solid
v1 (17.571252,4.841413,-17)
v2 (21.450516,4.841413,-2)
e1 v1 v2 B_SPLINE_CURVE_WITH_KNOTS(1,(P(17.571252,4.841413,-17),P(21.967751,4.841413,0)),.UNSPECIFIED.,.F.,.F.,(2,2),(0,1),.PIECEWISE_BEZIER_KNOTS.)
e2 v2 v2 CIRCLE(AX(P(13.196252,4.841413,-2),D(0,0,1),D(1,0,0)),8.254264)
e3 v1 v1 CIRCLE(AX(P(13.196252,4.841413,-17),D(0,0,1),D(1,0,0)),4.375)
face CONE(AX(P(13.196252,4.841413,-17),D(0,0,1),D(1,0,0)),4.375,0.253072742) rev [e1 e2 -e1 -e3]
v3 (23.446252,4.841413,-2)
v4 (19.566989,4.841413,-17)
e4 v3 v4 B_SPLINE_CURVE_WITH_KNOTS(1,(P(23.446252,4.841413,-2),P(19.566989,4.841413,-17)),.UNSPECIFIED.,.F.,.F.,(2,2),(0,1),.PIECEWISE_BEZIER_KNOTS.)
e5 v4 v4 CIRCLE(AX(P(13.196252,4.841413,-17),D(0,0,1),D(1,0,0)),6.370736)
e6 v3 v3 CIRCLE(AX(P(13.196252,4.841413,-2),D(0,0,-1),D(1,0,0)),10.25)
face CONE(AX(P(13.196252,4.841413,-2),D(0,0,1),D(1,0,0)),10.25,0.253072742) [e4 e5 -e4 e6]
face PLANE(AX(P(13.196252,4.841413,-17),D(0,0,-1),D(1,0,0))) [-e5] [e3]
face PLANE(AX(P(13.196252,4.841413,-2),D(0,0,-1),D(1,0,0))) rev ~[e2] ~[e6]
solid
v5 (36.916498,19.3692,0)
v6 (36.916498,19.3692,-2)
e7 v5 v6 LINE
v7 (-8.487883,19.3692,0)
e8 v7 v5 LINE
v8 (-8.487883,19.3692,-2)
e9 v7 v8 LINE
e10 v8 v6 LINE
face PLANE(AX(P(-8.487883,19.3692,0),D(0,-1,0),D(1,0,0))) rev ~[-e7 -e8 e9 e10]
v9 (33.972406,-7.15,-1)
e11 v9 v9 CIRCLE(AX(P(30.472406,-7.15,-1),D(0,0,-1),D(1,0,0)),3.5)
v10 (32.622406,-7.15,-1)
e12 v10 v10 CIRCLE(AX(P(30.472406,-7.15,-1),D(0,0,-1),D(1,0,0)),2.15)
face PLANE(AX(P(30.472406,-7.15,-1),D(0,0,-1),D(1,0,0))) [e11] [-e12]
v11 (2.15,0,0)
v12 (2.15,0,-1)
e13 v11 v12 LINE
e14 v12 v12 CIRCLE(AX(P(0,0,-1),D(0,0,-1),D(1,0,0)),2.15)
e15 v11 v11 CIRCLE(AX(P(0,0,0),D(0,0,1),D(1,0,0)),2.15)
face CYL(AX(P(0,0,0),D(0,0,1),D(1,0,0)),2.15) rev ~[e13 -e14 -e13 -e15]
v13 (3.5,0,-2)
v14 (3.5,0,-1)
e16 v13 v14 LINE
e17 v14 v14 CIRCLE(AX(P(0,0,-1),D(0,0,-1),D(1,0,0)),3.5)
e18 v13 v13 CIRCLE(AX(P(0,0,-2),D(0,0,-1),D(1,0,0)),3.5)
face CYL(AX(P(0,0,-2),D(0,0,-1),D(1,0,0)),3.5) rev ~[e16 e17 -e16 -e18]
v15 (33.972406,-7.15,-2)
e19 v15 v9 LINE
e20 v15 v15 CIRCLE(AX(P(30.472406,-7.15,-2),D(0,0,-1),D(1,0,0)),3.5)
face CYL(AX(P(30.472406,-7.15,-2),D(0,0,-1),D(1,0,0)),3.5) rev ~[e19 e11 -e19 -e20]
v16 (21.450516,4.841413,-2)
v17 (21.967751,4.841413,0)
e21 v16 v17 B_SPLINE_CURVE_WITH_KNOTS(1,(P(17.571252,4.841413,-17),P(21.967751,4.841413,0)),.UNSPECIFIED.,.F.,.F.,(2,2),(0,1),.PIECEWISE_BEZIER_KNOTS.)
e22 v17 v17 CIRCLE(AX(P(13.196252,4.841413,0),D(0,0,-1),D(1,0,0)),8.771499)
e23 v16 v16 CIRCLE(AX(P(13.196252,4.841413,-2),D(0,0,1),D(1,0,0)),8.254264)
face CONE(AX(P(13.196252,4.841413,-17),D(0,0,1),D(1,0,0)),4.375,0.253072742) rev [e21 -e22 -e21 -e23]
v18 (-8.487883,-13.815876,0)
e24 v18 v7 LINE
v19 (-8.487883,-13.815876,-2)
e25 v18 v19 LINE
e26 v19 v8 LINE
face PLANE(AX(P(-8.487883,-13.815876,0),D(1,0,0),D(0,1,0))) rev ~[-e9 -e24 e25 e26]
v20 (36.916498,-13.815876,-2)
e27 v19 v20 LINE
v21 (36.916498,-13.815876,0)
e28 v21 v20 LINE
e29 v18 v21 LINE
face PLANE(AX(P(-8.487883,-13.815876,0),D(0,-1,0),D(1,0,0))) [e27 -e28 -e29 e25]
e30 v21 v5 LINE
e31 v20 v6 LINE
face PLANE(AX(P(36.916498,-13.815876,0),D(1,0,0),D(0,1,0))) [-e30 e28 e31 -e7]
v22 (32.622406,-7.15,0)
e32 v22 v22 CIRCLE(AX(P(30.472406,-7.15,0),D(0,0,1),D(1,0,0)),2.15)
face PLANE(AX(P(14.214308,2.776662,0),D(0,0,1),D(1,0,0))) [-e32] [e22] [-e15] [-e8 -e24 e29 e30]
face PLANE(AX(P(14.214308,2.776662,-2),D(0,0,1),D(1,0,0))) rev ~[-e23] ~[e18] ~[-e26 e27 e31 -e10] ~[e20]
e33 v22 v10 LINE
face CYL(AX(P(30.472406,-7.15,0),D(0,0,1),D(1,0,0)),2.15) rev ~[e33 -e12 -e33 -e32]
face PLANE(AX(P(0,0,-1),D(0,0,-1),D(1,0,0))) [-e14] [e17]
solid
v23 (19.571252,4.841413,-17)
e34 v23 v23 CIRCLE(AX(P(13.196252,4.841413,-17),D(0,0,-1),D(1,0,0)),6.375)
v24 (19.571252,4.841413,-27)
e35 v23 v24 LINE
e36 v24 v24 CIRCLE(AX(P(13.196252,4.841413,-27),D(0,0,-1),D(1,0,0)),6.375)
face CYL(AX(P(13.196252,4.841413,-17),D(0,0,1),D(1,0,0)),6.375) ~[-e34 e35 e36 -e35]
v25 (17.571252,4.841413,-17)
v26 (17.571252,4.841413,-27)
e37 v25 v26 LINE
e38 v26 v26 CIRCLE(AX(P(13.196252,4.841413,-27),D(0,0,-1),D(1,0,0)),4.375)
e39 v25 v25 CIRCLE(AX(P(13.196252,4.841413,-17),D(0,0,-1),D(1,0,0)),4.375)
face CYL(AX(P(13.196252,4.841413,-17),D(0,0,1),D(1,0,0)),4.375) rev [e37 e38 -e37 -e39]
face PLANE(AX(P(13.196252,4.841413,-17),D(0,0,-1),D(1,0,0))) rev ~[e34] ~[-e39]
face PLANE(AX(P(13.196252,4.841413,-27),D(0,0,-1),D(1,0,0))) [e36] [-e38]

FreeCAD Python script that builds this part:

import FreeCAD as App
import Part
import Sketcher


def add_polygon(sketch, points):
    """Adds a closed chain of lines whose ends are joined by coincident constraints."""
    first, n = sketch.GeometryCount, len(points)
    for a, b in zip(points, points[1:] + points[:1]):
        sketch.addGeometry(Part.LineSegment(App.Vector(*a, 0), App.Vector(*b, 0)), False)
    for i in range(n):
        sketch.addConstraint(Sketcher.Constraint("Coincident", first + i, 2, first + (i + 1) % n, 1))

doc = App.newDocument("Part")
body = doc.addObject("PartDesign::Body", "Body")

sketch1 = body.newObject("Sketcher::SketchObject", "Sketch")
sketch1.AttachmentSupport = (doc.getObject("XY_Plane"), [""])
sketch1.MapMode = "FlatFace"
add_polygon(sketch1, [(-8.487883, 19.3692), (-8.487883, -13.815876), (36.916498, -13.815876), (36.916498, 19.3692)])
sketch1.addGeometry(Part.Circle(App.Vector(0, 0, 0), App.Vector(0, 0, 1), 2.15), False)
sketch1.addGeometry(Part.Circle(App.Vector(30.472406, -7.15, 0), App.Vector(0, 0, 1), 2.15), False)
add_polygon(sketch1, [(18.89, -0.85), (7.39, -0.85), (7.39, 10.65), (18.89, 10.65)])
sketch1.addConstraint(Sketcher.Constraint("Vertical", 0))
sketch1.addConstraint(Sketcher.Constraint("Horizontal", 1))
sketch1.addConstraint(Sketcher.Constraint("Vertical", 2))
sketch1.addConstraint(Sketcher.Constraint("Horizontal", 3))
sketch1.addConstraint(Sketcher.Constraint("Horizontal", 6))
sketch1.addConstraint(Sketcher.Constraint("Vertical", 7))
sketch1.addConstraint(Sketcher.Constraint("Horizontal", 8))
sketch1.addConstraint(Sketcher.Constraint("Vertical", 9))
sketch1.addConstraint(Sketcher.Constraint("Coincident", 4, 3, -1, 1))
sketch1.addConstraint(Sketcher.Constraint("Equal", 4, 5))
sketch1.addConstraint(Sketcher.Constraint("Equal", 8, 7))
sketch1.addConstraint(Sketcher.Constraint("Diameter", 4, 4.3))
sketch1.addConstraint(Sketcher.Constraint("DistanceX", 6, 2, 6, 1, 11.5))
sketch1.addConstraint(Sketcher.Constraint("DistanceY", 5, 3, 6, 2, 6.3))
sketch1.addConstraint(Sketcher.Constraint("DistanceY", 5, 3, -1, 1, 7.15))
sketch1.addConstraint(Sketcher.Constraint("DistanceX", -1, 1, 6, 2, 7.39))
sketch1.addConstraint(Sketcher.Constraint("DistanceX", 1, 1, 1, 2, 45.404381))
sketch1.addConstraint(Sketcher.Constraint("DistanceX", -1, 1, 1, 2, 36.916498))
sketch1.addConstraint(Sketcher.Constraint("DistanceY", -1, 1, 2, 2, 19.3692))
sketch1.addConstraint(Sketcher.Constraint("DistanceY", 0, 2, 0, 1, 33.185076))
sketch1.addConstraint(Sketcher.Constraint("DistanceX", 0, 2, 5, 3, 38.960289))
pad1 = body.newObject("PartDesign::Pad", "Pad")
pad1.Profile = sketch1
pad1.Length = 2
pad1.Reversed = True

sketch2 = body.newObject("Sketcher::SketchObject", "Sketch001")
sketch2.AttachmentSupport = (doc.getObject("XY_Plane"), [""])
sketch2.MapMode = "FlatFace"
sketch2.AttachmentOffset = App.Placement(App.Vector(0, 0, -2), App.Rotation())
sketch2.addGeometry(Part.Circle(App.Vector(30.472406, -7.15, 0), App.Vector(0, 0, 1), 3.5), False)
sketch2.addGeometry(Part.Circle(App.Vector(30.472406, -7.15, 0), App.Vector(0, 0, 1), 2.15), False)
sketch2.addGeometry(Part.Circle(App.Vector(0, 0, 0), App.Vector(0, 0, 1), 3.5), False)
sketch2.addGeometry(Part.Circle(App.Vector(0, 0, 0), App.Vector(0, 0, 1), 2.15), False)
sketch2.addConstraint(Sketcher.Constraint("Coincident", 2, 3, -1, 1))
sketch2.addConstraint(Sketcher.Constraint("Coincident", 3, 3, -1, 1))
sketch2.addConstraint(Sketcher.Constraint("Coincident", 1, 3, 0, 3))
sketch2.addConstraint(Sketcher.Constraint("Equal", 0, 2))
sketch2.addConstraint(Sketcher.Constraint("Equal", 1, 3))
sketch2.addConstraint(Sketcher.Constraint("Diameter", 0, 7.0))
sketch2.addConstraint(Sketcher.Constraint("Diameter", 1, 4.3))
sketch2.addConstraint(Sketcher.Constraint("DistanceY", 0, 3, -1, 1, 7.15))
sketch2.addConstraint(Sketcher.Constraint("DistanceX", -1, 1, 0, 3, 30.472406))
pocket1 = body.newObject("PartDesign::Pocket", "Pocket")
pocket1.Profile = sketch2
pocket1.Length = 1
pocket1.Reversed = True
body2 = doc.addObject("PartDesign::Body", "Body001")

sketch3 = body2.newObject("Sketcher::SketchObject", "Sketch002")
sketch3.AttachmentSupport = (doc.getObject("XY_Plane001"), [""])
sketch3.MapMode = "FlatFace"
sketch3.AttachmentOffset = App.Placement(App.Vector(0, 0, -17), App.Rotation())
sketch3.addGeometry(Part.Circle(App.Vector(13.196252, 4.841413, 0), App.Vector(0, 0, 1), 6.375), False)
sketch3.addGeometry(Part.Circle(App.Vector(13.196252, 4.841413, 0), App.Vector(0, 0, 1), 4.375), False)
sketch3.addConstraint(Sketcher.Constraint("Coincident", 1, 3, 0, 3))
sketch3.addConstraint(Sketcher.Constraint("Diameter", 0, 12.75))
sketch3.addConstraint(Sketcher.Constraint("Diameter", 1, 8.75))
sketch3.addConstraint(Sketcher.Constraint("DistanceX", -1, 1, 0, 3, 13.196252))
sketch3.addConstraint(Sketcher.Constraint("DistanceY", -1, 1, 0, 3, 4.841413))
pad2 = body2.newObject("PartDesign::Pad", "Pad001")
pad2.Profile = sketch3
pad2.Length = 10
pad2.Reversed = True
body3 = doc.addObject("PartDesign::Body", "Body002")

sketch4 = body3.newObject("Sketcher::SketchObject", "Sketch003")
sketch4.AttachmentSupport = (doc.getObject("XY_Plane002"), [""])
sketch4.MapMode = "FlatFace"
sketch4.AttachmentOffset = App.Placement(App.Vector(0, 0, -2), App.Rotation())
sketch4.addGeometry(Part.Circle(App.Vector(13.196252, 4.841413, 0), App.Vector(0, 0, 1), 10.25), False)
sketch4.addConstraint(Sketcher.Constraint("Diameter", 0, 20.5))
sketch4.addConstraint(Sketcher.Constraint("DistanceX", -1, 1, 0, 3, 13.196252))
sketch4.addConstraint(Sketcher.Constraint("DistanceY", -1, 1, 0, 3, 4.841413))
pad3 = body3.newObject("PartDesign::Pad", "Pad002")
pad3.Profile = sketch4
pad3.Length = 15
pad3.Reversed = True
pad3.TaperAngle = -14.5
body4 = doc.addObject("PartDesign::Body", "Body003")

sketch5 = body4.newObject("Sketcher::SketchObject", "Sketch004")
sketch5.AttachmentSupport = (doc.getObject("XY_Plane003"), [""])
sketch5.MapMode = "FlatFace"
sketch5.AttachmentOffset = App.Placement(App.Vector(0, 0, -17), App.Rotation())
sketch5.addGeometry(Part.Circle(App.Vector(13.196252, 4.841413, 0), App.Vector(0, 0, 1), 4.375), False)
sketch5.addConstraint(Sketcher.Constraint("Diameter", 0, 8.75))
sketch5.addConstraint(Sketcher.Constraint("DistanceX", -1, 1, 0, 3, 13.196252))
sketch5.addConstraint(Sketcher.Constraint("DistanceY", -1, 1, 0, 3, 4.841413))
pad4 = body4.newObject("PartDesign::Pad", "Pad003")
pad4.Profile = sketch5
pad4.Length = 17
pad4.TaperAngle = 14.5
doc.recompute()

body5 = doc.addObject("PartDesign::Body", "Body004")
body5.BaseFeature = body4
boolean = body.newObject("PartDesign::Boolean", "Boolean")
boolean.Type = "Cut"
boolean.addObjects([body5])
doc.recompute()

boolean2 = body3.newObject("PartDesign::Boolean", "Boolean001")
boolean2.Type = "Cut"
boolean2.addObjects([body4])

doc.recompute()
